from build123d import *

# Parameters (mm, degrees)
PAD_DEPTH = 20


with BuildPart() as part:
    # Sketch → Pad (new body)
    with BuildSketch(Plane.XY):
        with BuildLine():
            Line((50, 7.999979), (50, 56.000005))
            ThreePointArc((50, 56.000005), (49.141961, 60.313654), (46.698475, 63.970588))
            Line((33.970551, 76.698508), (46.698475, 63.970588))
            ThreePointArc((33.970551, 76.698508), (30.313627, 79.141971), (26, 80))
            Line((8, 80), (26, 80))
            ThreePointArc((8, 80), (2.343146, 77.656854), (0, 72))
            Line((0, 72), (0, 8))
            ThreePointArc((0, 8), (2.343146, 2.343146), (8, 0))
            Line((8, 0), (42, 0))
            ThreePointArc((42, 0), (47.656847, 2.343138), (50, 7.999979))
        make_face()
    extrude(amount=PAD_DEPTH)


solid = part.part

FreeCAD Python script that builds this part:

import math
import FreeCAD as App
import Part
import Sketcher

V = App.Vector
Q = App.Units.Quantity

doc = App.newDocument("Part")
body = doc.addObject("PartDesign::Body", "Body")

# Sketch on XY plane
sketch1 = doc.addObject("Sketcher::SketchObject", "Sketch")
body.addObject(sketch1)
sketch1.AttachmentSupport = (doc.XY_Plane, [""])
sketch1.MapMode = "FlatFace"
sketch1.addGeometry(Part.LineSegment(V(50, 7.999979, 0), V(50, 56.000005, 0)), False)
sketch1.addGeometry(Part.ArcOfCircle(Part.Circle(V(38.727892, 56.000003, 0), V(0, 0, 1), 11.272108), math.radians(0.000011), math.radians(45.000007)), False)
sketch1.addGeometry(Part.LineSegment(V(46.698475, 63.970588, 0), V(33.970551, 76.698508, 0)), False)
sketch1.addGeometry(Part.ArcOfCircle(Part.Circle(V(26.000001, 68.727897, 0), V(0, 0, 1), 11.272103), math.radians(45.000219), math.radians(90.000005)), False)
sketch1.addGeometry(Part.LineSegment(V(26, 80, 0), V(8, 80, 0)), False)
sketch1.addGeometry(Part.ArcOfCircle(Part.Circle(V(8.000001, 71.999999, 0), V(0, 0, 1), 8.000001), math.radians(90.000006), math.radians(179.999994)), False)
sketch1.addGeometry(Part.LineSegment(V(0, 72, 0), V(0, 8, 0)), False)
sketch1.addGeometry(Part.ArcOfCircle(Part.Circle(V(8.000001, 8.000001, 0), V(0, 0, 1), 8.000001), math.radians(-179.999994), math.radians(-90.000006)), False)
sketch1.addGeometry(Part.LineSegment(V(8, 0, 0), V(42, 0, 0)), False)
sketch1.addGeometry(Part.ArcOfCircle(Part.Circle(V(42.000001, 7.999999, 0), V(0, 0, 1), 7.999999), math.radians(-90.000006), math.radians(-0.000144)), False)
sketch1.addConstraint(Sketcher.Constraint("Tangent", 0, 2, 1, 1))
sketch1.addConstraint(Sketcher.Constraint("Tangent", 1, 2, 2, 1))
sketch1.addConstraint(Sketcher.Constraint("Coincident", 2, 2, 3, 1))
sketch1.addConstraint(Sketcher.Constraint("Tangent", 3, 2, 4, 1))
sketch1.addConstraint(Sketcher.Constraint("Tangent", 4, 2, 5, 1))
sketch1.addConstraint(Sketcher.Constraint("Tangent", 5, 2, 6, 1))
sketch1.addConstraint(Sketcher.Constraint("Tangent", 6, 2, 7, 1))
sketch1.addConstraint(Sketcher.Constraint("Tangent", 7, 2, 8, 1))
sketch1.addConstraint(Sketcher.Constraint("Tangent", 8, 2, 9, 1))
sketch1.addConstraint(Sketcher.Constraint("Coincident", 9, 2, 0, 1))
sketch1.addConstraint(Sketcher.Constraint("Vertical", 0))
sketch1.addConstraint(Sketcher.Constraint("Horizontal", 4))
sketch1.addConstraint(Sketcher.Constraint("Vertical", 6))
sketch1.addConstraint(Sketcher.Constraint("Horizontal", 8))
sketch1.addConstraint(Sketcher.Constraint("Equal", 5, 7))
sketch1.addConstraint(Sketcher.Constraint("Equal", 7, 9))
sketch1.addConstraint(Sketcher.Constraint("PointOnObject", 5, 2, -2))
sketch1.addConstraint(Sketcher.Constraint("PointOnObject", 7, 2, -1))
sketch1.addConstraint(Sketcher.Constraint("Radius", 5, Q("8.000001 mm")))
sketch1.addConstraint(Sketcher.Constraint("DistanceX", 4, 2, 4, 1, Q("18 mm")))
sketch1.addConstraint(Sketcher.Constraint("DistanceX", 8, 1, 8, 2, Q("34 mm")))
sketch1.addConstraint(Sketcher.Constraint("DistanceY", 6, 2, 6, 1, Q("64 mm")))
sketch1.addConstraint(Sketcher.Constraint("Angle", 2, Q("135.000009 deg")))
sketch1.addConstraint(Sketcher.Constraint("Distance", 2, Q("18 mm")))
sketch1.addConstraint(Sketcher.Constraint("Radius", 1, Q("11.272108 mm")))
sketch1.addConstraint(Sketcher.Constraint("Radius", 3, Q("11.272103 mm")))
sketch1.addConstraint(Sketcher.Constraint("DistanceY", 0, 1, 0, 2, Q("48.000026 mm")))
pad1 = doc.addObject("PartDesign::Pad", "Pad")
body.addObject(pad1)
pad1.Profile = sketch1
pad1.Length = 20

doc.recompute()
